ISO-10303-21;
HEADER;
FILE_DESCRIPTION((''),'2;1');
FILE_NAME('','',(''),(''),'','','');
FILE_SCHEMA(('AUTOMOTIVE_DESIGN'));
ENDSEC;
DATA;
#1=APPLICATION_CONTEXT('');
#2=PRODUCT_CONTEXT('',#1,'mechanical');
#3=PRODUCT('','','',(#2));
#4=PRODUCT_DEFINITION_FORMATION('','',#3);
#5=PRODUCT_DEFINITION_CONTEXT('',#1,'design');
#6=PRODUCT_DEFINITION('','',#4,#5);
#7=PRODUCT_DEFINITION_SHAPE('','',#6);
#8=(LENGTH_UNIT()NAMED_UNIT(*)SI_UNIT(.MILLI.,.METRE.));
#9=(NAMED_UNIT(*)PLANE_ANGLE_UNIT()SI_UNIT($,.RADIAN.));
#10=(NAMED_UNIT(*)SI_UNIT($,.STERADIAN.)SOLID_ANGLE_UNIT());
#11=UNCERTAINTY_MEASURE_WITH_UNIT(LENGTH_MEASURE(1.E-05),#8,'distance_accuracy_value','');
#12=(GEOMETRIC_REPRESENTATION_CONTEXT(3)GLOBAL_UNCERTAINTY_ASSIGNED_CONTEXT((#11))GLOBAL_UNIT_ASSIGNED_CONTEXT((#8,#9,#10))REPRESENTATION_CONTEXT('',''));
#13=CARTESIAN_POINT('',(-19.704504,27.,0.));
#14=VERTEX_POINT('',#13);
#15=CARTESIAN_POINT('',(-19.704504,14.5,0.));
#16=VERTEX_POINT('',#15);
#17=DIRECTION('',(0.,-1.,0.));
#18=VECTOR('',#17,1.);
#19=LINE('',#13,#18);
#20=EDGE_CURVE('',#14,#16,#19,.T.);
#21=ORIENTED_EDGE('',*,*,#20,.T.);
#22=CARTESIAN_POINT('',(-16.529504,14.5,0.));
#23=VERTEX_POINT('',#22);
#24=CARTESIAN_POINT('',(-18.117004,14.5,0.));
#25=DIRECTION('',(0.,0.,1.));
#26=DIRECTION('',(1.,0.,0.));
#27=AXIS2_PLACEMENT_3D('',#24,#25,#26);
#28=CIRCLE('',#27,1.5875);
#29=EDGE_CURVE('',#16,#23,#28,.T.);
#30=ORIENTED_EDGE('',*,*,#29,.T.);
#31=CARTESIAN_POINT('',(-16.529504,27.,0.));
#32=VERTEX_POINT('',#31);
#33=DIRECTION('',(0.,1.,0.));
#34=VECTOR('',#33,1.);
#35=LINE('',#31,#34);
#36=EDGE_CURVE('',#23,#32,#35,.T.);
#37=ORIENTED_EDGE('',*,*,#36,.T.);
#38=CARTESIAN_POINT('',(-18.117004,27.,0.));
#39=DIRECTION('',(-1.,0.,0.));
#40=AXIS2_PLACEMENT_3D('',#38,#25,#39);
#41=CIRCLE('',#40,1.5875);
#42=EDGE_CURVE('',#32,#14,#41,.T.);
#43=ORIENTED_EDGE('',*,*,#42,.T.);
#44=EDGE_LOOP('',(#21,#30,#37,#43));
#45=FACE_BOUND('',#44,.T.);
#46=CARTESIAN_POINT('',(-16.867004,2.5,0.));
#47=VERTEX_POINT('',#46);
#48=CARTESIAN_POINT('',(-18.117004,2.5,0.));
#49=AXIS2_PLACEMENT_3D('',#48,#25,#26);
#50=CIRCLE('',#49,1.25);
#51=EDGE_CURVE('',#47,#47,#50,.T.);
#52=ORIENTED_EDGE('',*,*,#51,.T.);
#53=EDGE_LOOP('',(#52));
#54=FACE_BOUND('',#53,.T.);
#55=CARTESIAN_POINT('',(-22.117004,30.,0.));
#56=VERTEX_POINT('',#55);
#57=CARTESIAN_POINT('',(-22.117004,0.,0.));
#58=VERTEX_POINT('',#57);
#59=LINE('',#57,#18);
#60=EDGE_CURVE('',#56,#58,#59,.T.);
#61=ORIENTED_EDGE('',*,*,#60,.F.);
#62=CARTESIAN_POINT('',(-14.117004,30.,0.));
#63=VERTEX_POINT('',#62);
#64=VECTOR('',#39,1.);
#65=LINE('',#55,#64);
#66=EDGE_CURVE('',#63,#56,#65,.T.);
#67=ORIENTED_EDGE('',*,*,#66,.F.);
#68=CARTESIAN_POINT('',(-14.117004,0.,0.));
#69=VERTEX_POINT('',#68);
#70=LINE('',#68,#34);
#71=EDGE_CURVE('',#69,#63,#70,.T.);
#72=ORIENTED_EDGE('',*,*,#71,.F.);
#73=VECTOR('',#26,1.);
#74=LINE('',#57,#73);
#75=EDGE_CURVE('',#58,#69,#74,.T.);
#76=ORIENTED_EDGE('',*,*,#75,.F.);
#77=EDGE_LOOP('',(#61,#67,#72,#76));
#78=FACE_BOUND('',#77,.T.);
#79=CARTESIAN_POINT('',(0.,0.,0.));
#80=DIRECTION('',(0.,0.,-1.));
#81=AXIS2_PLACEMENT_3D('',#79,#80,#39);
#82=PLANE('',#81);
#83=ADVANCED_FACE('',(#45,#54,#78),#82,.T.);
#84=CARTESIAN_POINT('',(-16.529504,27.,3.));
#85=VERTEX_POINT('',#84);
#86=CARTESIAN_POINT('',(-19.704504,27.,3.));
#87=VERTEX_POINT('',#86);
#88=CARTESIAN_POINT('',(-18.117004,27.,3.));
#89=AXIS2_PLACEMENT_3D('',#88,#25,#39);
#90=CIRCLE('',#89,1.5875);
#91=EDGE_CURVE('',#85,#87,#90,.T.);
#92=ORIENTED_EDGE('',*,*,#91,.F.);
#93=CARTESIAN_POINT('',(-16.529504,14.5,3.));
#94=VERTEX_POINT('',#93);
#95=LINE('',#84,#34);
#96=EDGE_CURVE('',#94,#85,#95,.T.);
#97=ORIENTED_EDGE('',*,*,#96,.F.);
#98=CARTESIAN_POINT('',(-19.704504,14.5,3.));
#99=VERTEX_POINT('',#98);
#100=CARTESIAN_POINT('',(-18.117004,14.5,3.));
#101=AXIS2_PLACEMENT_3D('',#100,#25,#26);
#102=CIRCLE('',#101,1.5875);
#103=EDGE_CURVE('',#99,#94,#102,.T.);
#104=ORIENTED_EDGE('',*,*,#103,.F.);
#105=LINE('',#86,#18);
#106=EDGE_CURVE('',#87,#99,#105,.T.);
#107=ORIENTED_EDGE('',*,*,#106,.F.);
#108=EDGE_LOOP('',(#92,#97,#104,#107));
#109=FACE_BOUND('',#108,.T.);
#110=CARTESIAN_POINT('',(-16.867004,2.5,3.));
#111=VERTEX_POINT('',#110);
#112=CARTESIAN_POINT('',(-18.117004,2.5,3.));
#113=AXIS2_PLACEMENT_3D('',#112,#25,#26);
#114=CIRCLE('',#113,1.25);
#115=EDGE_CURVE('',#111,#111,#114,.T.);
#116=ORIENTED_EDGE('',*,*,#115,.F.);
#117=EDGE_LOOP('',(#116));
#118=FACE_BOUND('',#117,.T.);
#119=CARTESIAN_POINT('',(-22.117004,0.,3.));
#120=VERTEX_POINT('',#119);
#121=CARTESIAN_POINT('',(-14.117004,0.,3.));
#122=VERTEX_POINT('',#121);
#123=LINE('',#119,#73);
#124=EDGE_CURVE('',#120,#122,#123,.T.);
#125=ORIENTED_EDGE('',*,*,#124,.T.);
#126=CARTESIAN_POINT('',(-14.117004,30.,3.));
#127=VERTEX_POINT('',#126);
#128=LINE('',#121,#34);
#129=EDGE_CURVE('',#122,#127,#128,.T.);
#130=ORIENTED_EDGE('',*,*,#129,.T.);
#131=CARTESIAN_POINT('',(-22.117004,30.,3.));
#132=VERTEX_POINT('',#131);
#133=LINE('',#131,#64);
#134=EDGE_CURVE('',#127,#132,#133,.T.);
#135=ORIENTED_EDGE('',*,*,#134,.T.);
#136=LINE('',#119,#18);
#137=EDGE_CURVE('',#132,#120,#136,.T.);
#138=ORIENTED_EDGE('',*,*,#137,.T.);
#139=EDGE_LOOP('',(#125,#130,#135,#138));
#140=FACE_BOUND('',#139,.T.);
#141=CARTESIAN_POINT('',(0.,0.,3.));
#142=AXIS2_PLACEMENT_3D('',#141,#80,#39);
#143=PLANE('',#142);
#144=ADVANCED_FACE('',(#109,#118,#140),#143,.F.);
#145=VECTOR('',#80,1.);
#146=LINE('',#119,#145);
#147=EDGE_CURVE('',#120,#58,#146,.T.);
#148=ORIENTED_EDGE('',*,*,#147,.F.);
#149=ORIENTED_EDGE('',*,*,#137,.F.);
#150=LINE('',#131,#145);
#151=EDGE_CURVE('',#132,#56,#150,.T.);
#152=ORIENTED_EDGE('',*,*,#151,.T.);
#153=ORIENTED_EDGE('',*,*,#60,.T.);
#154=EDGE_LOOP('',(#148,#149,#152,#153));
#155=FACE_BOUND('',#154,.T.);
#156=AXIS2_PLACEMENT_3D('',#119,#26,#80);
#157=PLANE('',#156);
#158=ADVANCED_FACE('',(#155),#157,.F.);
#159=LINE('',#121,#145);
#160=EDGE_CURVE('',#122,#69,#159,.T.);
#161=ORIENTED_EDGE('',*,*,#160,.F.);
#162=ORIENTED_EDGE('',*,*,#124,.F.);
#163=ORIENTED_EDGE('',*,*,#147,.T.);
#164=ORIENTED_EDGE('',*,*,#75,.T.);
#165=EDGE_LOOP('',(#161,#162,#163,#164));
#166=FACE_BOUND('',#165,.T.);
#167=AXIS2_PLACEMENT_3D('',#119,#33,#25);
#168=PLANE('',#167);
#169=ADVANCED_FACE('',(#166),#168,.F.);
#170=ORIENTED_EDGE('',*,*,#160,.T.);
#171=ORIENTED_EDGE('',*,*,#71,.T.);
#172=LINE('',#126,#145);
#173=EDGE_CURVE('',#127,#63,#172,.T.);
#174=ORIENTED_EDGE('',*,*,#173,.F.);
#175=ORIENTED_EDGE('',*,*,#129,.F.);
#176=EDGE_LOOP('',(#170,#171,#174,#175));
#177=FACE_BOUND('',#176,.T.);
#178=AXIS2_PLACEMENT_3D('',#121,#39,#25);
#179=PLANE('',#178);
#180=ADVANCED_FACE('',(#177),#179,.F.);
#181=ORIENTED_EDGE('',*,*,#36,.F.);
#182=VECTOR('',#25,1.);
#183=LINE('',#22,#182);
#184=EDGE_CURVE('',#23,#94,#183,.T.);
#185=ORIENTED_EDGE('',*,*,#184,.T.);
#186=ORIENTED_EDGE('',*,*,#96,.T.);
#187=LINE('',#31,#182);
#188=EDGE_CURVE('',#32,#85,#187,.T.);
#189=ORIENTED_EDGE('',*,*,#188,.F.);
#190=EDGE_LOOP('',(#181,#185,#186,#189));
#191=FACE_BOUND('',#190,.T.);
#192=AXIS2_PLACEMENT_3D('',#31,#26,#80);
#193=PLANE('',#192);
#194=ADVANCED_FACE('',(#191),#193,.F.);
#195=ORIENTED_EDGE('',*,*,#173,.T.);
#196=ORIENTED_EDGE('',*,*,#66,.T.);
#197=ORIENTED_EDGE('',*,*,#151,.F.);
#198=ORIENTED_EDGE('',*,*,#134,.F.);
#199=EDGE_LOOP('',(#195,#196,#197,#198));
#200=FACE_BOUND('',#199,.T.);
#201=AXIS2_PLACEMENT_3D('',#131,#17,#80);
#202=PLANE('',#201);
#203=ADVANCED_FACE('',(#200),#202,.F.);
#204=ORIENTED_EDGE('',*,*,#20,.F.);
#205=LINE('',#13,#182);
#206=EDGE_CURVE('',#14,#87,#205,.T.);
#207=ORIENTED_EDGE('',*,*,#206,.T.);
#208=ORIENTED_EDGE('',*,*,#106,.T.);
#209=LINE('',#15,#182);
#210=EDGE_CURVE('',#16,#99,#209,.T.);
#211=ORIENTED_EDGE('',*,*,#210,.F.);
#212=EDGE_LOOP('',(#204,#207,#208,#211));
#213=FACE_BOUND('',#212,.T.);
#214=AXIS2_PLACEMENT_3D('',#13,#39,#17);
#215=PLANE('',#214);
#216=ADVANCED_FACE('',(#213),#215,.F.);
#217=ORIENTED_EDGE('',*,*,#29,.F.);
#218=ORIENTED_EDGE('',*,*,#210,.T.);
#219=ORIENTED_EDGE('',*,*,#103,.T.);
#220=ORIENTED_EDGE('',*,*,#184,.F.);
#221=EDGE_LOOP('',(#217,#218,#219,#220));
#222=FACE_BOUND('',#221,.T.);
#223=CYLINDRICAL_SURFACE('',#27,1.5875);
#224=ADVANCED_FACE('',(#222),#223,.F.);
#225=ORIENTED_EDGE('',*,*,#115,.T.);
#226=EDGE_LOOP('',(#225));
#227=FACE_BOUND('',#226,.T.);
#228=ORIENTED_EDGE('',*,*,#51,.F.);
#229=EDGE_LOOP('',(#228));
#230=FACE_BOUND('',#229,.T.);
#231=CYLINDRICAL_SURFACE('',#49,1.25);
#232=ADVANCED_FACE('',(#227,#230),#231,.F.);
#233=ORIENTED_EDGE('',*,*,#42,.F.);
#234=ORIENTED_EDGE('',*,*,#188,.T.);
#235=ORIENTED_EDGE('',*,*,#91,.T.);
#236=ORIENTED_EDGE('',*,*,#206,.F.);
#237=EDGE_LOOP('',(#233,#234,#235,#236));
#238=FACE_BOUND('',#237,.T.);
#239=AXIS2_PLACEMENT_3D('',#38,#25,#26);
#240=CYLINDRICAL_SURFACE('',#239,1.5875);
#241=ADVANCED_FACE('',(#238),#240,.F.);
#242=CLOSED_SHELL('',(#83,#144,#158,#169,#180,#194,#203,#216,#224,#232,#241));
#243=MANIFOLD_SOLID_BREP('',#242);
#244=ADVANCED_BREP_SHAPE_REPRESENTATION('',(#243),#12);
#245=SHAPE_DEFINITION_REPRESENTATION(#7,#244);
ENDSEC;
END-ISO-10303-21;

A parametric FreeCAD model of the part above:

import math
import FreeCAD as App
import Part
import Sketcher

doc = App.newDocument("Part")
body = doc.addObject("PartDesign::Body", "Body")

# Sketch on XY plane
sketch1 = doc.addObject("Sketcher::SketchObject", "Sketch")
body.addObject(sketch1)
sketch1.AttachmentSupport = (doc.XY_Plane, [""])
sketch1.MapMode = "FlatFace"
sketch1.addGeometry([
    Part.LineSegment(App.Vector(-22, 30, 0), App.Vector(-22, 0, 0)),
    Part.LineSegment(App.Vector(-22, 0, 0), App.Vector(-14, 0, 0)),
    Part.LineSegment(App.Vector(-14, 0, 0), App.Vector(-14, 30, 0)),
    Part.LineSegment(App.Vector(-14, 30, 0), App.Vector(-22, 30, 0)),
], False)
sketch1.addConstraint([
    Sketcher.Constraint("Coincident", 0, 2, 1, 1),
    Sketcher.Constraint("Coincident", 1, 2, 2, 1),
    Sketcher.Constraint("Coincident", 2, 2, 3, 1),
    Sketcher.Constraint("Coincident", 3, 2, 0, 1),
    Sketcher.Constraint("Vertical", 0),
    Sketcher.Constraint("Horizontal", 1),
    Sketcher.Constraint("Vertical", 2),
    Sketcher.Constraint("Horizontal", 3),
    Sketcher.Constraint("PointOnObject", 0, 2, -1),
    Sketcher.Constraint("DistanceX", 1, 1, 1, 2, 8.0),
    Sketcher.Constraint("DistanceY", 0, 2, 0, 1, 30.0),
    Sketcher.Constraint("DistanceX", 0, 2, -1, 1, 22.117004),
])
pad1 = doc.addObject("PartDesign::Pad", "Pad")
body.addObject(pad1)
pad1.Profile = sketch1
pad1.Length = 3

# Sketch on XY plane
sketch2 = doc.addObject("Sketcher::SketchObject", "Sketch001")
body.addObject(sketch2)
sketch2.AttachmentSupport = (doc.XY_Plane, [""])
sketch2.MapMode = "FlatFace"
sketch2.AttachmentOffset = App.Placement(App.Vector(0, 0, 3), App.Rotation())
sketch2.addGeometry([
    Part.Circle(App.Vector(-18.1, 2.5, 0), App.Vector(0, 0, 1), 1.2),  # 0
    Part.LineSegment(App.Vector(-16.5, 14.5, 0), App.Vector(-16.5, 27, 0)),  # 1
    Part.ArcOfCircle(Part.Circle(App.Vector(-18.1, 27, 0), App.Vector(0, 0, 1), 1.6), math.radians(0), math.radians(180)),  # 2
    Part.LineSegment(App.Vector(-19.7, 27, 0), App.Vector(-19.7, 14.5, 0)),  # 3
    Part.ArcOfCircle(Part.Circle(App.Vector(-18.1, 14.5, 0), App.Vector(0, 0, 1), 1.6), math.radians(180), math.radians(360)),  # 4
], False)
sketch2.addConstraint([
    Sketcher.Constraint("Tangent", 1, 2, 2, 1),
    Sketcher.Constraint("Tangent", 2, 2, 3, 1),
    Sketcher.Constraint("Tangent", 3, 2, 4, 1),
    Sketcher.Constraint("Tangent", 4, 2, 1, 1),
    Sketcher.Constraint("Vertical", 1),
    Sketcher.Constraint("Vertical", 3),
    Sketcher.Constraint("Vertical", 0, 3, 2, 3),
    Sketcher.Constraint("Diameter", 0, 2.5),
    Sketcher.Constraint("DistanceY", 1, 1, 1, 2, 12.5),
    Sketcher.Constraint("DistanceY", -1, 1, 2, 3, 27.0),
    Sketcher.Constraint("DistanceY", 0, 3, 4, 3, 12.0),
    Sketcher.Constraint("Radius", 2, 1.5875),
    Sketcher.Constraint("DistanceX", 0, 3, -1, 1, 18.117004),
])
pocket1 = doc.addObject("PartDesign::Pocket", "Pocket")
body.addObject(pocket1)
pocket1.Profile = sketch2
pocket1.Length = 3

doc.recompute()
